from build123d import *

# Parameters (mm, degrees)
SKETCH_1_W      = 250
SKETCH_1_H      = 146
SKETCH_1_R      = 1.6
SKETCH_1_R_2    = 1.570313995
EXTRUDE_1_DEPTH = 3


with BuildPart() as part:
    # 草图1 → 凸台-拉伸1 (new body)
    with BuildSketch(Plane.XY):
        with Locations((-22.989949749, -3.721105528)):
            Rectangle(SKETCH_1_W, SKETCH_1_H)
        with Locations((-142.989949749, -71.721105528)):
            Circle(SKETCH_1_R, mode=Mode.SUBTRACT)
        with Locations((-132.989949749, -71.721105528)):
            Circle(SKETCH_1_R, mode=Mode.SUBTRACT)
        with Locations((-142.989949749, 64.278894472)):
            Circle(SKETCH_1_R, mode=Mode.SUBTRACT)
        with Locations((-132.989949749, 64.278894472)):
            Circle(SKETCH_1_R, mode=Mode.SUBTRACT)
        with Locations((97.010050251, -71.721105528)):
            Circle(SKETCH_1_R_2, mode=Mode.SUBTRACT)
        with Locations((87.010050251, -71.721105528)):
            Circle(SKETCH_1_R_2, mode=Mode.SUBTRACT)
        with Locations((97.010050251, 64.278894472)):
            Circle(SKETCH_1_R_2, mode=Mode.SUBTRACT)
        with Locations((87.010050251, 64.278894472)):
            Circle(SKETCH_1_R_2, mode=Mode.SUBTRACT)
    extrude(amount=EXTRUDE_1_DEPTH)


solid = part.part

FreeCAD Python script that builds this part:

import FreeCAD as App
import Part
import Sketcher

V = App.Vector

doc = App.newDocument("Part")
body = doc.addObject("PartDesign::Body", "Body")

# Sketch on XY plane
sketch1 = body.newObject("Sketcher::SketchObject", "Sketch")
sketch1.AttachmentSupport = (doc.getObject("XY_Plane"), [""])
sketch1.MapMode = "FlatFace"
sketch1.addGeometry([
    Part.LineSegment(V(-148, 69.3, 0), V(-148, -76.7, 0)),  # 0
    Part.LineSegment(V(-148, -76.7, 0), V(102, -76.7, 0)),  # 1
    Part.LineSegment(V(102, -76.7, 0), V(102, 69.3, 0)),  # 2
    Part.LineSegment(V(102, 69.3, 0), V(-148, 69.3, 0)),  # 3
    Part.Circle(V(-143, -71.7, 0), V(0, 0, 1), 1.6),  # 4
    Part.Circle(V(-133, -71.7, 0), V(0, 0, 1), 1.6),  # 5
    Part.Circle(V(87, -71.7, 0), V(0, 0, 1), 1.6),  # 6
    Part.Circle(V(97, -71.7, 0), V(0, 0, 1), 1.6),  # 7
    Part.Circle(V(-143, 64.3, 0), V(0, 0, 1), 1.6),  # 8
    Part.Circle(V(-133, 64.3, 0), V(0, 0, 1), 1.6),  # 9
    Part.Circle(V(87, 64.3, 0), V(0, 0, 1), 1.6),  # 10
    Part.Circle(V(97, 64.3, 0), V(0, 0, 1), 1.6),  # 11
], False)
sketch1.addConstraint([
    Sketcher.Constraint("Coincident", 0, 2, 1, 1),
    Sketcher.Constraint("Coincident", 1, 2, 2, 1),
    Sketcher.Constraint("Coincident", 2, 2, 3, 1),
    Sketcher.Constraint("Coincident", 3, 2, 0, 1),
    Sketcher.Constraint("Vertical", 0),
    Sketcher.Constraint("Horizontal", 1),
    Sketcher.Constraint("Vertical", 2),
    Sketcher.Constraint("Horizontal", 3),
    Sketcher.Constraint("Equal", 4, 5),
    Sketcher.Constraint("Equal", 6, 7),
    Sketcher.Constraint("Equal", 5, 8),
    Sketcher.Constraint("Equal", 8, 9),
    Sketcher.Constraint("Equal", 7, 10),
    Sketcher.Constraint("Equal", 10, 11),
    Sketcher.Constraint("Horizontal", 4, 3, 5, 3),
    Sketcher.Constraint("Horizontal", 5, 3, 6, 3),
    Sketcher.Constraint("Horizontal", 6, 3, 7, 3),
    Sketcher.Constraint("Horizontal", 8, 3, 9, 3),
    Sketcher.Constraint("Horizontal", 9, 3, 10, 3),
    Sketcher.Constraint("Horizontal", 10, 3, 11, 3),
    Sketcher.Constraint("Vertical", 4, 3, 8, 3),
    Sketcher.Constraint("Vertical", 5, 3, 9, 3),
    Sketcher.Constraint("Vertical", 6, 3, 10, 3),
    Sketcher.Constraint("Vertical", 7, 3, 11, 3),
    Sketcher.Constraint("Diameter", 4, 3.2),
    Sketcher.Constraint("DistanceX", 1, 1, 1, 2, 250.0),
    Sketcher.Constraint("DistanceY", 0, 2, 0, 1, 146.0),
    Sketcher.Constraint("DistanceX", 4, 3, 5, 3, 10.0),
    Sketcher.Constraint("DistanceX", 5, 3, 6, 3, 220.0),
    Sketcher.Constraint("DistanceX", 6, 3, 7, 3, 10.0),
    Sketcher.Constraint("DistanceY", 4, 3, 8, 3, 136.0),
    Sketcher.Constraint("DistanceX", 0, 2, 4, 3, 5.0),
    Sketcher.Constraint("DistanceY", 0, 2, 4, 3, 5.0),
    Sketcher.Constraint("Diameter", 6, 3.140628),
    Sketcher.Constraint("DistanceX", 4, 3, -1, 1, 142.98995),
    Sketcher.Constraint("DistanceY", 4, 3, -1, 1, 71.721106),
])
pad1 = body.newObject("PartDesign::Pad", "Pad")
pad1.Profile = sketch1
pad1.Length = 3

doc.recompute()
